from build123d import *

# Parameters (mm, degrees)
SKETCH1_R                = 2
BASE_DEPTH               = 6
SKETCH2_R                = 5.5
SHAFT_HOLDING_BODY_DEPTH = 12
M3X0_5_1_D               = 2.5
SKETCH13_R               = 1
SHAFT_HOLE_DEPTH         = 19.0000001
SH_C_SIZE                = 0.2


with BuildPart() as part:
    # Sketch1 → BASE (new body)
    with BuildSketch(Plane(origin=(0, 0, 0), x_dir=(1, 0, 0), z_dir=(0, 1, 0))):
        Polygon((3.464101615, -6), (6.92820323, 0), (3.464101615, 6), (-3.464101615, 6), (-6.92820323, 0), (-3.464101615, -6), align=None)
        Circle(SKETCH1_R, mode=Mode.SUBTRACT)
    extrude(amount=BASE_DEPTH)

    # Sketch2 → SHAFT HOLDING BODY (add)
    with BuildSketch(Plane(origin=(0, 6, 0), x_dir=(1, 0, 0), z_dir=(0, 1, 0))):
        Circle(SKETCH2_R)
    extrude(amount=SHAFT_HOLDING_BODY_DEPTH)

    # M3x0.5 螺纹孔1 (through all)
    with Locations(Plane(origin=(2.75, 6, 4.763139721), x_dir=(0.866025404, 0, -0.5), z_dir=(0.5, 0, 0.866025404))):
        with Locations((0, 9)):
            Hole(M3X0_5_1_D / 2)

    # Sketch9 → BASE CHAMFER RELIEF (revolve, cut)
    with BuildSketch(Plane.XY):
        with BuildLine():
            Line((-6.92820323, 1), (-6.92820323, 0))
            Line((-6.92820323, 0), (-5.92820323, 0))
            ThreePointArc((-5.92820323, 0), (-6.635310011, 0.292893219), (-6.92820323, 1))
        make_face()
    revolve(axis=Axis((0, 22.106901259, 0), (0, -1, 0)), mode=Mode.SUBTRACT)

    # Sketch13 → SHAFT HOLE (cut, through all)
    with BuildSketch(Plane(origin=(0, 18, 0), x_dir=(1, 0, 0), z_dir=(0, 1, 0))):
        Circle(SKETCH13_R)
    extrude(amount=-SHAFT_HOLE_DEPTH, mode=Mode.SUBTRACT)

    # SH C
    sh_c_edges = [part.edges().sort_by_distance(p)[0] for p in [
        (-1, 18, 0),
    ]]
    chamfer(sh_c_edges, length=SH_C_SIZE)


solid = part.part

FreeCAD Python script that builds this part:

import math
import FreeCAD as App
import Part
import Sketcher
from FreeCAD import Vector
Q = App.Units.Quantity


def edges_at(feature, points):
    """Names of the edges that pass closest to the given points."""
    edges = feature.Shape.Edges
    near = lambda p: min(range(len(edges)), key=lambda i: edges[i].distToShape(Part.Vertex(*p))[0])
    return sorted({f"Edge{near(p) + 1}" for p in points})

doc = App.newDocument("Part")
body = doc.addObject("PartDesign::Body", "Body")

# Sketch on XZ plane
sketch1 = body.newObject("Sketcher::SketchObject", "Sketch")
sketch1.AttachmentSupport = (doc.getObject("XZ_Plane"), [""])
sketch1.MapMode = "FlatFace"
sketch1.addGeometry([
    Part.LineSegment(Vector(3.464102, 6, 0), Vector(6.928203, 0, 0)),  # 0
    Part.LineSegment(Vector(6.928203, 0, 0), Vector(3.464102, -6, 0)),  # 1
    Part.LineSegment(Vector(3.464102, -6, 0), Vector(-3.464102, -6, 0)),  # 2
    Part.LineSegment(Vector(-3.464102, -6, 0), Vector(-6.928203, 0, 0)),  # 3
    Part.LineSegment(Vector(-6.928203, 0, 0), Vector(-3.464102, 6, 0)),  # 4
    Part.LineSegment(Vector(-3.464102, 6, 0), Vector(3.464102, 6, 0)),  # 5
    Part.Circle(Vector(0, 0, 0), Vector(0, 0, 1), 2),  # 6
], False)
sketch1.addConstraint([
    Sketcher.Constraint("Coincident", 0, 2, 1, 1),
    Sketcher.Constraint("Coincident", 1, 2, 2, 1),
    Sketcher.Constraint("Coincident", 2, 2, 3, 1),
    Sketcher.Constraint("Coincident", 3, 2, 4, 1),
    Sketcher.Constraint("Coincident", 4, 2, 5, 1),
    Sketcher.Constraint("Coincident", 5, 2, 0, 1),
    Sketcher.Constraint("Horizontal", 2),
    Sketcher.Constraint("Horizontal", 5),
    Sketcher.Constraint("Coincident", 6, 3, -1, 1),
    Sketcher.Constraint("Symmetric", 0, 2, 3, 2, -1, 1),
    Sketcher.Constraint("Symmetric", 1, 2, 4, 2, -1, 1),
    Sketcher.Constraint("PointOnObject", 0, 2, -1),
    Sketcher.Constraint("Parallel", 0, 3),
    Sketcher.Constraint("Vertical", 2, 2, 4, 2),
    Sketcher.Constraint("Diameter", 6, 4.0),
    Sketcher.Constraint("Angle", 0, Q("-60 deg")),
    Sketcher.Constraint("DistanceY", 1, 2, -1, 1, 6.0),
    Sketcher.Constraint("DistanceX", -1, 1, 1, 2, 3.464102),
])
pad1 = body.newObject("PartDesign::Pad", "Pad")
pad1.Profile = sketch1
pad1.Length = 6
pad1.Reversed = True

# Sketch on XZ plane
sketch2 = body.newObject("Sketcher::SketchObject", "Sketch001")
sketch2.AttachmentSupport = (doc.getObject("XZ_Plane"), [""])
sketch2.MapMode = "FlatFace"
sketch2.AttachmentOffset = App.Placement(Vector(0, 0, -6), App.Rotation())
sketch2.addGeometry(Part.Circle(Vector(0, 0, 0), Vector(0, 0, 1), 5.5), False)
sketch2.addConstraint([
    Sketcher.Constraint("Coincident", 0, 3, -1, 1),
    Sketcher.Constraint("Diameter", 0, 11.0),
])
pad2 = body.newObject("PartDesign::Pad", "Pad001")
pad2.Profile = sketch2
pad2.Length = 12
pad2.Reversed = True

# Sketch on an angled plane
sketch3 = body.newObject("Sketcher::SketchObject", "Sketch002")
sketch3.Placement = App.Placement(Vector(2.75, 0, 4.76314), App.Rotation(Vector(0.866025404, 0, -0.5), Vector(0, 1, 0), Vector(0.5, 0, 0.866025404), "ZXY"))
sketch3.addGeometry(Part.Circle(Vector(0, 15, 0), Vector(0, 0, 1), 1.25), False)
sketch3.addConstraint([
    Sketcher.Constraint("PointOnObject", 0, 3, -2),
    Sketcher.Constraint("Diameter", 0, 2.5),
    Sketcher.Constraint("DistanceY", -1, 1, 0, 3, 15.0),
])
doc.recompute()
hole = body.newObject("PartDesign::Hole", "Hole")
hole.Profile = sketch3
hole.ThreadType = "None"
hole.Diameter = 2.5
hole.DepthType = "ThroughAll"

# Sketch on XY plane
sketch4 = body.newObject("Sketcher::SketchObject", "Sketch003")
sketch4.AttachmentSupport = (doc.getObject("XY_Plane"), [""])
sketch4.MapMode = "FlatFace"
sketch4.addGeometry([
    Part.LineSegment(Vector(-6.928203, 1, 0), Vector(-6.928203, 0, 0)),
    Part.LineSegment(Vector(-6.928203, 0, 0), Vector(-5.928203, 0, 0)),
    Part.ArcOfCircle(Part.Circle(Vector(-5.928203, 1, 0), Vector(0, 0, 1), 1), math.radians(-180), math.radians(-90)),
], False)
sketch4.addConstraint([
    Sketcher.Constraint("Coincident", 0, 2, 1, 1),
    Sketcher.Constraint("Tangent", 1, 2, 2, 2),
    Sketcher.Constraint("Tangent", 2, 1, 0, 1),
    Sketcher.Constraint("Vertical", 0),
    Sketcher.Constraint("Horizontal", 1),
    Sketcher.Constraint("PointOnObject", 0, 2, -1),
    Sketcher.Constraint("Radius", 2, 1.0),
    Sketcher.Constraint("DistanceX", 2, 3, -1, 1, 5.928203),
])
groove = body.newObject("PartDesign::Groove", "Groove")
groove.Profile = sketch4
groove.ReferenceAxis = (sketch4, ["V_Axis"])
groove.Angle = 360

# Sketch on XZ plane
sketch5 = body.newObject("Sketcher::SketchObject", "Sketch004")
sketch5.AttachmentSupport = (doc.getObject("XZ_Plane"), [""])
sketch5.MapMode = "FlatFace"
sketch5.AttachmentOffset = App.Placement(Vector(0, 0, -18), App.Rotation())
sketch5.addGeometry(Part.Circle(Vector(0, 0, 0), Vector(0, 0, 1), 1), False)
sketch5.addConstraint([
    Sketcher.Constraint("Coincident", 0, 3, -1, 1),
    Sketcher.Constraint("Diameter", 0, 2.0),
])
pocket1 = body.newObject("PartDesign::Pocket", "Pocket")
pocket1.Profile = sketch5
pocket1.Type = "ThroughAll"
pocket1.Reversed = True
doc.recompute()

chamfer = body.newObject("PartDesign::Chamfer", "Chamfer")
chamfer.Base = (pocket1, edges_at(pocket1, [(-1, 18, 0)]))
chamfer.Size = 0.2

doc.recompute()
